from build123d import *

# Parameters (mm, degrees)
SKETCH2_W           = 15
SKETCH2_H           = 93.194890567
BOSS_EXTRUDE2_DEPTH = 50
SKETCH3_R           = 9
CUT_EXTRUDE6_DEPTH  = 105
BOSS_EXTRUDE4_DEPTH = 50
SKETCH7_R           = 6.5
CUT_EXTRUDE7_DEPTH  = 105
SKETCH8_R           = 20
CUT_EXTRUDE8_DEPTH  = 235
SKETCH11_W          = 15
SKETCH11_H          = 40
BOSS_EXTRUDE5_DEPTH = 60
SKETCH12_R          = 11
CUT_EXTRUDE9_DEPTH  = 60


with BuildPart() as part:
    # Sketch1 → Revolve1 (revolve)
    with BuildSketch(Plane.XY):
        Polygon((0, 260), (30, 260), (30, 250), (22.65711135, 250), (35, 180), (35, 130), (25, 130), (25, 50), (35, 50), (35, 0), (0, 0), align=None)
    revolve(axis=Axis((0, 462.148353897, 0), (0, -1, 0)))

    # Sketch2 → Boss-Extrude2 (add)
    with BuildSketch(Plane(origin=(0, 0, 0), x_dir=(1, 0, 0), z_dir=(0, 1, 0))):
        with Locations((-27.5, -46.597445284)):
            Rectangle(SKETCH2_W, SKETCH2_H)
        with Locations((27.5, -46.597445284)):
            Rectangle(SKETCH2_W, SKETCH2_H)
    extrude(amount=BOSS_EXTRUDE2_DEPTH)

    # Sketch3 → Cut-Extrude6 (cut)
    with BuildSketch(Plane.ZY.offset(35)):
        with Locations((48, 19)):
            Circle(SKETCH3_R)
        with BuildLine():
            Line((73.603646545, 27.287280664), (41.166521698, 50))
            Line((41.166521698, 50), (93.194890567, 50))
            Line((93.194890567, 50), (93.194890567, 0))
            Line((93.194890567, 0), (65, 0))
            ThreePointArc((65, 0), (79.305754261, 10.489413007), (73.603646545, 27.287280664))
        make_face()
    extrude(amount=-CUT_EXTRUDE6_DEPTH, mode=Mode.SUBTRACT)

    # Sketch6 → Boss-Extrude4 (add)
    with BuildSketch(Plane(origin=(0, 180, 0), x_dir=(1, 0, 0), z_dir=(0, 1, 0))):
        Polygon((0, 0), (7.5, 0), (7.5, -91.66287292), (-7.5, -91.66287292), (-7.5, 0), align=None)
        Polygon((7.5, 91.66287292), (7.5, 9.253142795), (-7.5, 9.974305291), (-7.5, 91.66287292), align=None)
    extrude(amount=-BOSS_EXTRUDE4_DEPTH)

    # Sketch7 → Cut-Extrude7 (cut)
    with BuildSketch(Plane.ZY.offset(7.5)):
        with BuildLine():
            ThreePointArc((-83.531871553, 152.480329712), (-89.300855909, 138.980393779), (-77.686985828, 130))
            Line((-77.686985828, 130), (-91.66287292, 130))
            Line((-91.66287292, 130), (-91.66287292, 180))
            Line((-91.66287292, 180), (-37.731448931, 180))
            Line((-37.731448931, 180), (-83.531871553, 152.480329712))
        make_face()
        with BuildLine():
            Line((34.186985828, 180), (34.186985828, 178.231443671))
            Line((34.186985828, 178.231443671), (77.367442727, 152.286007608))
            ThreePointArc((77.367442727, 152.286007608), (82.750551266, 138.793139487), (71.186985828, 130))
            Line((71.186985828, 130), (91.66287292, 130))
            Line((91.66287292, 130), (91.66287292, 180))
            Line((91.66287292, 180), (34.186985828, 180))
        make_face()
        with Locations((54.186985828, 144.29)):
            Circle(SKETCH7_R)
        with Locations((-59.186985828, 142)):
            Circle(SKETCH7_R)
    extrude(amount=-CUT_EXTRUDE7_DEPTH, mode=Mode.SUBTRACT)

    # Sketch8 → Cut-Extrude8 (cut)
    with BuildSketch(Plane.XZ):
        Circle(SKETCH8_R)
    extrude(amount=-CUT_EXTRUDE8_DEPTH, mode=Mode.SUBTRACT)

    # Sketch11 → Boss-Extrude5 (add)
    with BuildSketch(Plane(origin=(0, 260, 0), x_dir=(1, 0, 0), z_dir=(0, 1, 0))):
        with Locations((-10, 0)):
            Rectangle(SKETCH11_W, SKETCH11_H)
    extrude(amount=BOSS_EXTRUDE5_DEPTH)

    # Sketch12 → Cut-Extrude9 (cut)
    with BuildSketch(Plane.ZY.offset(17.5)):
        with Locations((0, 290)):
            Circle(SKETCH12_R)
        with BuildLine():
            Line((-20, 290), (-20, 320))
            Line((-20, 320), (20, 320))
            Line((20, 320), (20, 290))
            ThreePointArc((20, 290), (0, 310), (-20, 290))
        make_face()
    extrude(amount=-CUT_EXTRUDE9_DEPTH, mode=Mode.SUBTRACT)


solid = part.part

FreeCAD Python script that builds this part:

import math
import FreeCAD as App
import Part
import Sketcher
Q = App.Units.Quantity

doc = App.newDocument("Part")
params = doc.addObject("Spreadsheet::Sheet", "Params")
for row, (alias, value) in enumerate([
    ("sketch1_width", "30 mm"),
    ("sketch1_width2", "35 mm"),
    ("sketch1_width3", "10 mm"),
    ("sketch1_height", "260 mm"),
    ("sketch1_height2", "50 mm"),
    ("revolution_angle", "360 deg"),
    ("sketch2_width", "15 mm"),
    ("pad1_length", "50 mm"),
    ("sketch3_diameter", "18 mm"),
    ("sketch3_radius", "15 mm"),
    ("sketch3_width", "50 mm"),
    ("pocket1_length", "105 mm"),
    ("sketch4_width", "15 mm"),
    ("pad2_length", "50 mm"),
    ("sketch5_diameter", "13 mm"),
    ("sketch5_radius", "12 mm"),
    ("sketch5_width", "50 mm"),
    ("pocket2_length", "105 mm"),
    ("sketch6_diameter", "40 mm"),
    ("pocket3_length", "235 mm"),
    ("sketch7_width", "15 mm"),
    ("sketch7_height", "40 mm"),
    ("pad3_length", "60 mm"),
    ("sketch8_diameter", "22 mm"),
    ("sketch8_radius", "20 mm"),
    ("sketch8_width", "30 mm"),
    ("pocket4_length", "60 mm"),
], start=1):
    params.set(f"A{row}", alias)
    params.set(f"B{row}", "=" + value)
    params.setAlias(f"B{row}", alias)

body = doc.addObject("PartDesign::Body", "Body")

# Sketch on XY plane
sketch1 = doc.addObject("Sketcher::SketchObject", "Sketch")
body.addObject(sketch1)
sketch1.AttachmentSupport = (doc.XY_Plane, [""])
sketch1.MapMode = "FlatFace"
sketch1.addGeometry(Part.LineSegment(App.Vector(30, 260, 0), App.Vector(0, 260, 0)), False)
sketch1.addGeometry(Part.LineSegment(App.Vector(0, 260, 0), App.Vector(0, 0, 0)), False)
sketch1.addGeometry(Part.LineSegment(App.Vector(0, 0, 0), App.Vector(35, 0, 0)), False)
sketch1.addGeometry(Part.LineSegment(App.Vector(35, 0, 0), App.Vector(35, 50, 0)), False)
sketch1.addGeometry(Part.LineSegment(App.Vector(35, 50, 0), App.Vector(25, 50, 0)), False)
sketch1.addGeometry(Part.LineSegment(App.Vector(25, 50, 0), App.Vector(25, 130, 0)), False)
sketch1.addGeometry(Part.LineSegment(App.Vector(25, 130, 0), App.Vector(35, 130, 0)), False)
sketch1.addGeometry(Part.LineSegment(App.Vector(35, 130, 0), App.Vector(35, 180, 0)), False)
sketch1.addGeometry(Part.LineSegment(App.Vector(35, 180, 0), App.Vector(23, 250, 0)), False)
sketch1.addGeometry(Part.LineSegment(App.Vector(23, 250, 0), App.Vector(30, 250, 0)), False)
sketch1.addGeometry(Part.LineSegment(App.Vector(30, 250, 0), App.Vector(30, 260, 0)), False)
sketch1.addConstraint(Sketcher.Constraint("Coincident", 0, 2, 1, 1))
sketch1.addConstraint(Sketcher.Constraint("Coincident", 1, 2, 2, 1))
sketch1.addConstraint(Sketcher.Constraint("Coincident", 2, 2, 3, 1))
sketch1.addConstraint(Sketcher.Constraint("Coincident", 3, 2, 4, 1))
sketch1.addConstraint(Sketcher.Constraint("Coincident", 4, 2, 5, 1))
sketch1.addConstraint(Sketcher.Constraint("Coincident", 5, 2, 6, 1))
sketch1.addConstraint(Sketcher.Constraint("Coincident", 6, 2, 7, 1))
sketch1.addConstraint(Sketcher.Constraint("Coincident", 7, 2, 8, 1))
sketch1.addConstraint(Sketcher.Constraint("Coincident", 8, 2, 9, 1))
sketch1.addConstraint(Sketcher.Constraint("Coincident", 9, 2, 10, 1))
sketch1.addConstraint(Sketcher.Constraint("Coincident", 10, 2, 0, 1))
sketch1.addConstraint(Sketcher.Constraint("Horizontal", 0))
sketch1.addConstraint(Sketcher.Constraint("Vertical", 1))
sketch1.addConstraint(Sketcher.Constraint("Horizontal", 2))
sketch1.addConstraint(Sketcher.Constraint("Vertical", 3))
sketch1.addConstraint(Sketcher.Constraint("Horizontal", 4))
sketch1.addConstraint(Sketcher.Constraint("Vertical", 5))
sketch1.addConstraint(Sketcher.Constraint("Horizontal", 6))
sketch1.addConstraint(Sketcher.Constraint("Vertical", 7))
sketch1.addConstraint(Sketcher.Constraint("Horizontal", 9))
sketch1.addConstraint(Sketcher.Constraint("Vertical", 10))
sketch1.addConstraint(Sketcher.Constraint("Coincident", 1, 2, -1, 1))
sketch1.addConstraint(Sketcher.Constraint("Vertical", 3, 2, 6, 2))
sketch1.addConstraint(Sketcher.Constraint("Equal", 3, 7))
sketch1.addConstraint(Sketcher.Constraint("Equal", 6, 10))
sketch1.addConstraint(Sketcher.Constraint("DistanceX", 0, 2, 0, 1, 30.0))
sketch1.addConstraint(Sketcher.Constraint("DistanceX", 2, 1, 2, 2, 35.0))
sketch1.addConstraint(Sketcher.Constraint("DistanceX", 4, 2, 4, 1, 10.0))
sketch1.addConstraint(Sketcher.Constraint("DistanceY", 1, 2, 1, 1, 260.0))
sketch1.addConstraint(Sketcher.Constraint("DistanceY", 3, 1, 3, 2, 50.0))
sketch1.addConstraint(Sketcher.Constraint("DistanceY", 5, 1, 5, 2, 80.0))
sketch1.addConstraint(Sketcher.Constraint("Angle", 8, Q("100 deg")))
sketch1.setExpression("Constraints[25]", "Params.sketch1_width")
sketch1.setExpression("Constraints[26]", "Params.sketch1_width2")
sketch1.setExpression("Constraints[27]", "Params.sketch1_width3")
sketch1.setExpression("Constraints[28]", "Params.sketch1_height")
sketch1.setExpression("Constraints[29]", "Params.sketch1_height2")
revolution = doc.addObject("PartDesign::Revolution", "Revolution")
body.addObject(revolution)
revolution.Profile = sketch1
revolution.ReferenceAxis = (sketch1, ["V_Axis"])
revolution.setExpression("Angle", "Params.revolution_angle")

# Sketch on XZ plane
sketch2 = doc.addObject("Sketcher::SketchObject", "Sketch001")
body.addObject(sketch2)
sketch2.AttachmentSupport = (doc.XZ_Plane, [""])
sketch2.MapMode = "FlatFace"
sketch2.addGeometry(Part.LineSegment(App.Vector(-35, 0, 0), App.Vector(-35, 93, 0)), False)
sketch2.addGeometry(Part.LineSegment(App.Vector(-35, 93, 0), App.Vector(-20, 93, 0)), False)
sketch2.addGeometry(Part.LineSegment(App.Vector(-20, 93, 0), App.Vector(-20, 0, 0)), False)
sketch2.addGeometry(Part.LineSegment(App.Vector(-20, 0, 0), App.Vector(-35, 0, 0)), False)
sketch2.addGeometry(Part.LineSegment(App.Vector(20, 0, 0), App.Vector(20, 93, 0)), False)
sketch2.addGeometry(Part.LineSegment(App.Vector(20, 93, 0), App.Vector(35, 93, 0)), False)
sketch2.addGeometry(Part.LineSegment(App.Vector(35, 93, 0), App.Vector(35, 0, 0)), False)
sketch2.addGeometry(Part.LineSegment(App.Vector(35, 0, 0), App.Vector(20, 0, 0)), False)
sketch2.addConstraint(Sketcher.Constraint("Coincident", 0, 2, 1, 1))
sketch2.addConstraint(Sketcher.Constraint("Coincident", 1, 2, 2, 1))
sketch2.addConstraint(Sketcher.Constraint("Coincident", 2, 2, 3, 1))
sketch2.addConstraint(Sketcher.Constraint("Coincident", 3, 2, 0, 1))
sketch2.addConstraint(Sketcher.Constraint("Coincident", 4, 2, 5, 1))
sketch2.addConstraint(Sketcher.Constraint("Coincident", 5, 2, 6, 1))
sketch2.addConstraint(Sketcher.Constraint("Coincident", 6, 2, 7, 1))
sketch2.addConstraint(Sketcher.Constraint("Coincident", 7, 2, 4, 1))
sketch2.addConstraint(Sketcher.Constraint("Vertical", 0))
sketch2.addConstraint(Sketcher.Constraint("Horizontal", 1))
sketch2.addConstraint(Sketcher.Constraint("Vertical", 2))
sketch2.addConstraint(Sketcher.Constraint("Horizontal", 3))
sketch2.addConstraint(Sketcher.Constraint("Vertical", 4))
sketch2.addConstraint(Sketcher.Constraint("Horizontal", 5))
sketch2.addConstraint(Sketcher.Constraint("Vertical", 6))
sketch2.addConstraint(Sketcher.Constraint("Horizontal", 7))
sketch2.addConstraint(Sketcher.Constraint("Symmetric", 3, 2, 6, 2, -1, 1))
sketch2.addConstraint(Sketcher.Constraint("Symmetric", 1, 2, 4, 2, -2))
sketch2.addConstraint(Sketcher.Constraint("PointOnObject", 2, 2, -1))
sketch2.addConstraint(Sketcher.Constraint("DistanceX", 1, 1, 1, 2, 15.0))
sketch2.addConstraint(Sketcher.Constraint("DistanceX", 0, 2, -1, 1, 35.0))
sketch2.addConstraint(Sketcher.Constraint("DistanceY", 0, 1, 0, 2, 93.194891))
sketch2.setExpression("Constraints[19]", "Params.sketch2_width")
pad1 = doc.addObject("PartDesign::Pad", "Pad")
body.addObject(pad1)
pad1.Profile = sketch2
pad1.setExpression("Length", "Params.pad1_length")
pad1.Reversed = True

# Sketch on YZ plane
sketch3 = doc.addObject("Sketcher::SketchObject", "Sketch002")
body.addObject(sketch3)
sketch3.AttachmentSupport = (doc.YZ_Plane, [""])
sketch3.MapMode = "FlatFace"
sketch3.AttachmentOffset = App.Placement(App.Vector(0, 0, -35), App.Rotation())
sketch3.addGeometry(Part.Circle(App.Vector(19, 48, 0), App.Vector(0, 0, 1), 9), False)
sketch3.addGeometry(Part.LineSegment(App.Vector(50, 41, 0), App.Vector(27, 74, 0)), False)
sketch3.addGeometry(Part.ArcOfCircle(Part.Circle(App.Vector(15, 65, 0), App.Vector(0, 0, 1), 15), math.radians(35), math.radians(180)), False)
sketch3.addGeometry(Part.LineSegment(App.Vector(0, 65, 0), App.Vector(0, 93, 0)), False)
sketch3.addGeometry(Part.LineSegment(App.Vector(0, 93, 0), App.Vector(50, 93, 0)), False)
sketch3.addGeometry(Part.LineSegment(App.Vector(50, 93, 0), App.Vector(50, 41, 0)), False)
sketch3.addConstraint(Sketcher.Constraint("Tangent", 1, 2, 2, 1))
sketch3.addConstraint(Sketcher.Constraint("Tangent", 2, 2, 3, 1))
sketch3.addConstraint(Sketcher.Constraint("Coincident", 3, 2, 4, 1))
sketch3.addConstraint(Sketcher.Constraint("Coincident", 4, 2, 5, 1))
sketch3.addConstraint(Sketcher.Constraint("Coincident", 5, 2, 1, 1))
sketch3.addConstraint(Sketcher.Constraint("Vertical", 3))
sketch3.addConstraint(Sketcher.Constraint("Horizontal", 4))
sketch3.addConstraint(Sketcher.Constraint("Vertical", 5))
sketch3.addConstraint(Sketcher.Constraint("PointOnObject", 2, 2, -2))
sketch3.addConstraint(Sketcher.Constraint("Diameter", 0, 18.0))
sketch3.addConstraint(Sketcher.Constraint("Radius", 2, 15.0))
sketch3.addConstraint(Sketcher.Constraint("DistanceX", 4, 1, 4, 2, 50.0))
sketch3.addConstraint(Sketcher.Constraint("Angle", 1, Q("125 deg")))
sketch3.addConstraint(Sketcher.Constraint("DistanceX", -1, 1, 0, 3, 19.0))
sketch3.addConstraint(Sketcher.Constraint("DistanceY", -1, 1, 0, 3, 48.0))
sketch3.addConstraint(Sketcher.Constraint("DistanceY", -1, 1, 2, 3, 65.0))
sketch3.addConstraint(Sketcher.Constraint("DistanceY", 3, 1, 3, 2, 28.194891))
sketch3.setExpression("Constraints[9]", "Params.sketch3_diameter")
sketch3.setExpression("Constraints[10]", "Params.sketch3_radius")
sketch3.setExpression("Constraints[11]", "Params.sketch3_width")
pocket1 = doc.addObject("PartDesign::Pocket", "Pocket")
body.addObject(pocket1)
pocket1.Profile = sketch3
pocket1.setExpression("Length", "Params.pocket1_length")
pocket1.Reversed = True

# Sketch on XZ plane
sketch4 = doc.addObject("Sketcher::SketchObject", "Sketch003")
body.addObject(sketch4)
sketch4.AttachmentSupport = (doc.XZ_Plane, [""])
sketch4.MapMode = "FlatFace"
sketch4.AttachmentOffset = App.Placement(App.Vector(0, 0, -180), App.Rotation())
sketch4.addGeometry(Part.LineSegment(App.Vector(8, 0, 0), App.Vector(-8, 0, 0)), False)
sketch4.addGeometry(Part.LineSegment(App.Vector(-8, 0, 0), App.Vector(-8, 92, 0)), False)
sketch4.addGeometry(Part.LineSegment(App.Vector(-8, 92, 0), App.Vector(8, 92, 0)), False)
sketch4.addGeometry(Part.LineSegment(App.Vector(8, 92, 0), App.Vector(8, 0, 0)), False)
sketch4.addGeometry(Part.LineSegment(App.Vector(8, -9, 0), App.Vector(8, -92, 0)), False)
sketch4.addGeometry(Part.LineSegment(App.Vector(8, -92, 0), App.Vector(-8, -92, 0)), False)
sketch4.addGeometry(Part.LineSegment(App.Vector(-8, -92, 0), App.Vector(-8, -10, 0)), False)
sketch4.addGeometry(Part.LineSegment(App.Vector(-8, -10, 0), App.Vector(8, -9, 0)), False)
sketch4.addConstraint(Sketcher.Constraint("Coincident", 0, 2, 1, 1))
sketch4.addConstraint(Sketcher.Constraint("Coincident", 1, 2, 2, 1))
sketch4.addConstraint(Sketcher.Constraint("Coincident", 2, 2, 3, 1))
sketch4.addConstraint(Sketcher.Constraint("Coincident", 3, 2, 0, 1))
sketch4.addConstraint(Sketcher.Constraint("Coincident", 4, 2, 5, 1))
sketch4.addConstraint(Sketcher.Constraint("Coincident", 5, 2, 6, 1))
sketch4.addConstraint(Sketcher.Constraint("Coincident", 6, 2, 7, 1))
sketch4.addConstraint(Sketcher.Constraint("Coincident", 7, 2, 4, 1))
sketch4.addConstraint(Sketcher.Constraint("Horizontal", 0))
sketch4.addConstraint(Sketcher.Constraint("Vertical", 1))
sketch4.addConstraint(Sketcher.Constraint("Horizontal", 2))
sketch4.addConstraint(Sketcher.Constraint("Vertical", 3))
sketch4.addConstraint(Sketcher.Constraint("Vertical", 4))
sketch4.addConstraint(Sketcher.Constraint("Horizontal", 5))
sketch4.addConstraint(Sketcher.Constraint("Vertical", 6))
sketch4.addConstraint(Sketcher.Constraint("Symmetric", 0, 2, 3, 2, -1, 1))
sketch4.addConstraint(Sketcher.Constraint("Symmetric", 1, 2, 4, 2, -1, 1))
sketch4.addConstraint(Sketcher.Constraint("Vertical", 1, 2, 5, 2))
sketch4.addConstraint(Sketcher.Constraint("DistanceX", 0, 2, 0, 1, 15.0))
sketch4.addConstraint(Sketcher.Constraint("DistanceY", 4, 2, 4, 1, 82.40973))
sketch4.addConstraint(Sketcher.Constraint("DistanceY", 1, 1, 1, 2, 91.662873))
sketch4.addConstraint(Sketcher.Constraint("DistanceY", 6, 1, 6, 2, 81.688568))
sketch4.setExpression("Constraints[18]", "Params.sketch4_width")
pad2 = doc.addObject("PartDesign::Pad", "Pad001")
body.addObject(pad2)
pad2.Profile = sketch4
pad2.setExpression("Length", "Params.pad2_length")

# Sketch on YZ plane
sketch5 = doc.addObject("Sketcher::SketchObject", "Sketch004")
body.addObject(sketch5)
sketch5.AttachmentSupport = (doc.YZ_Plane, [""])
sketch5.MapMode = "FlatFace"
sketch5.AttachmentOffset = App.Placement(App.Vector(0, 0, -7.5), App.Rotation())
sketch5.addGeometry(Part.ArcOfCircle(Part.Circle(App.Vector(142, -77.7, 0), App.Vector(0, 0, 1), 12), math.radians(-180), math.radians(-29)), False)
sketch5.addGeometry(Part.LineSegment(App.Vector(152.5, -83.5, 0), App.Vector(180, -37.7, 0)), False)
sketch5.addGeometry(Part.LineSegment(App.Vector(180, -37.7, 0), App.Vector(180, -91.7, 0)), False)
sketch5.addGeometry(Part.LineSegment(App.Vector(180, -91.7, 0), App.Vector(130, -91.7, 0)), False)
sketch5.addGeometry(Part.LineSegment(App.Vector(130, -91.7, 0), App.Vector(130, -77.7, 0)), False)
sketch5.addGeometry(Part.LineSegment(App.Vector(180, 34.2, 0), App.Vector(178.2, 34.2, 0)), False)
sketch5.addGeometry(Part.LineSegment(App.Vector(178.2, 34.2, 0), App.Vector(152.3, 77.4, 0)), False)
sketch5.addGeometry(Part.ArcOfCircle(Part.Circle(App.Vector(142, 71.2, 0), App.Vector(0, 0, 1), 12), math.radians(31), math.radians(180)), False)
sketch5.addGeometry(Part.LineSegment(App.Vector(130, 71.2, 0), App.Vector(130, 91.7, 0)), False)
sketch5.addGeometry(Part.LineSegment(App.Vector(130, 91.7, 0), App.Vector(180, 91.7, 0)), False)
sketch5.addGeometry(Part.LineSegment(App.Vector(180, 91.7, 0), App.Vector(180, 34.2, 0)), False)
sketch5.addGeometry(Part.Circle(App.Vector(144.3, 54.2, 0), App.Vector(0, 0, 1), 6.5), False)
sketch5.addGeometry(Part.Circle(App.Vector(142, -59.2, 0), App.Vector(0, 0, 1), 6.5), False)
sketch5.addConstraint(Sketcher.Constraint("Coincident", 0, 2, 1, 1))
sketch5.addConstraint(Sketcher.Constraint("Coincident", 1, 2, 2, 1))
sketch5.addConstraint(Sketcher.Constraint("Coincident", 2, 2, 3, 1))
sketch5.addConstraint(Sketcher.Constraint("Coincident", 3, 2, 4, 1))
sketch5.addConstraint(Sketcher.Constraint("Tangent", 4, 2, 0, 1))
sketch5.addConstraint(Sketcher.Constraint("Coincident", 5, 2, 6, 1))
sketch5.addConstraint(Sketcher.Constraint("Tangent", 6, 2, 7, 1))
sketch5.addConstraint(Sketcher.Constraint("Tangent", 7, 2, 8, 1))
sketch5.addConstraint(Sketcher.Constraint("Coincident", 8, 2, 9, 1))
sketch5.addConstraint(Sketcher.Constraint("Coincident", 9, 2, 10, 1))
sketch5.addConstraint(Sketcher.Constraint("Coincident", 10, 2, 5, 1))
sketch5.addConstraint(Sketcher.Constraint("Vertical", 2))
sketch5.addConstraint(Sketcher.Constraint("Horizontal", 3))
sketch5.addConstraint(Sketcher.Constraint("Vertical", 4))
sketch5.addConstraint(Sketcher.Constraint("Horizontal", 5))
sketch5.addConstraint(Sketcher.Constraint("Vertical", 8))
sketch5.addConstraint(Sketcher.Constraint("Horizontal", 9))
sketch5.addConstraint(Sketcher.Constraint("Vertical", 10))
sketch5.addConstraint(Sketcher.Constraint("Equal", 0, 7))
sketch5.addConstraint(Sketcher.Constraint("Equal", 11, 12))
sketch5.addConstraint(Sketcher.Constraint("Symmetric", 3, 2, 8, 2, -1))
sketch5.addConstraint(Sketcher.Constraint("Vertical", 7, 3, 12, 3))
sketch5.addConstraint(Sketcher.Constraint("Vertical", 2, 2, 9, 2))
sketch5.addConstraint(Sketcher.Constraint("Diameter", 11, 13.0))
sketch5.addConstraint(Sketcher.Constraint("Radius", 0, 12.0))
sketch5.addConstraint(Sketcher.Constraint("DistanceX", 3, 2, 3, 1, 50.0))
sketch5.addConstraint(Sketcher.Constraint("Angle", 1, Q("59 deg")))
sketch5.addConstraint(Sketcher.Constraint("Angle", 6, Q("121 deg")))
sketch5.addConstraint(Sketcher.Constraint("DistanceX", -1, 1, 0, 3, 142.0))
sketch5.addConstraint(Sketcher.Constraint("DistanceY", 11, 3, 7, 3, 17.0))
sketch5.addConstraint(Sketcher.Constraint("DistanceY", 5, 2, 11, 3, 20.0))
sketch5.addConstraint(Sketcher.Constraint("DistanceY", 0, 3, 12, 3, 18.5))
sketch5.addConstraint(Sketcher.Constraint("DistanceX", -1, 1, 11, 3, 144.29))
sketch5.addConstraint(Sketcher.Constraint("DistanceY", 2, 2, 0, 2, 8.131001))
sketch5.addConstraint(Sketcher.Constraint("DistanceY", 2, 2, 2, 1, 53.931424))
sketch5.addConstraint(Sketcher.Constraint("DistanceY", 8, 1, 8, 2, 20.475887))
sketch5.addConstraint(Sketcher.Constraint("DistanceY", 0, 2, -1, 1, 83.531872))
sketch5.setExpression("Constraints[23]", "Params.sketch5_diameter")
sketch5.setExpression("Constraints[24]", "Params.sketch5_radius")
sketch5.setExpression("Constraints[25]", "Params.sketch5_width")
pocket2 = doc.addObject("PartDesign::Pocket", "Pocket001")
body.addObject(pocket2)
pocket2.Profile = sketch5
pocket2.setExpression("Length", "Params.pocket2_length")
pocket2.Reversed = True

# Sketch on XZ plane
sketch6 = doc.addObject("Sketcher::SketchObject", "Sketch005")
body.addObject(sketch6)
sketch6.AttachmentSupport = (doc.XZ_Plane, [""])
sketch6.MapMode = "FlatFace"
sketch6.addGeometry(Part.Circle(App.Vector(0, 0, 0), App.Vector(0, 0, 1), 20), False)
sketch6.addConstraint(Sketcher.Constraint("Coincident", 0, 3, -1, 1))
sketch6.addConstraint(Sketcher.Constraint("Diameter", 0, 40.0))
sketch6.setExpression("Constraints[1]", "Params.sketch6_diameter")
pocket3 = doc.addObject("PartDesign::Pocket", "Pocket002")
body.addObject(pocket3)
pocket3.Profile = sketch6
pocket3.setExpression("Length", "Params.pocket3_length")

# Sketch on XZ plane
sketch7 = doc.addObject("Sketcher::SketchObject", "Sketch006")
body.addObject(sketch7)
sketch7.AttachmentSupport = (doc.XZ_Plane, [""])
sketch7.MapMode = "FlatFace"
sketch7.AttachmentOffset = App.Placement(App.Vector(0, 0, -260), App.Rotation())
sketch7.addGeometry(Part.LineSegment(App.Vector(-18, -20, 0), App.Vector(-18, 20, 0)), False)
sketch7.addGeometry(Part.LineSegment(App.Vector(-18, 20, 0), App.Vector(-2, 20, 0)), False)
sketch7.addGeometry(Part.LineSegment(App.Vector(-2, 20, 0), App.Vector(-2, -20, 0)), False)
sketch7.addGeometry(Part.LineSegment(App.Vector(-2, -20, 0), App.Vector(-18, -20, 0)), False)
sketch7.addConstraint(Sketcher.Constraint("Coincident", 0, 2, 1, 1))
sketch7.addConstraint(Sketcher.Constraint("Coincident", 1, 2, 2, 1))
sketch7.addConstraint(Sketcher.Constraint("Coincident", 2, 2, 3, 1))
sketch7.addConstraint(Sketcher.Constraint("Coincident", 3, 2, 0, 1))
sketch7.addConstraint(Sketcher.Constraint("Vertical", 0))
sketch7.addConstraint(Sketcher.Constraint("Horizontal", 1))
sketch7.addConstraint(Sketcher.Constraint("Vertical", 2))
sketch7.addConstraint(Sketcher.Constraint("Horizontal", 3))
sketch7.addConstraint(Sketcher.Constraint("DistanceX", 1, 1, 1, 2, 15.0))
sketch7.addConstraint(Sketcher.Constraint("DistanceY", 0, 1, 0, 2, 40.0))
sketch7.addConstraint(Sketcher.Constraint("DistanceY", -1, 1, 0, 2, 20.0))
sketch7.addConstraint(Sketcher.Constraint("DistanceX", 0, 2, -1, 1, 17.5))
sketch7.setExpression("Constraints[8]", "Params.sketch7_width")
sketch7.setExpression("Constraints[9]", "Params.sketch7_height")
pad3 = doc.addObject("PartDesign::Pad", "Pad002")
body.addObject(pad3)
pad3.Profile = sketch7
pad3.setExpression("Length", "Params.pad3_length")
pad3.Reversed = True

# Sketch on YZ plane
sketch8 = doc.addObject("Sketcher::SketchObject", "Sketch007")
body.addObject(sketch8)
sketch8.AttachmentSupport = (doc.YZ_Plane, [""])
sketch8.MapMode = "FlatFace"
sketch8.AttachmentOffset = App.Placement(App.Vector(0, 0, -17.5), App.Rotation())
sketch8.addGeometry(Part.Circle(App.Vector(290, 0, 0), App.Vector(0, 0, 1), 11), False)
sketch8.addGeometry(Part.LineSegment(App.Vector(320, -20, 0), App.Vector(290, -20, 0)), False)
sketch8.addGeometry(Part.ArcOfCircle(Part.Circle(App.Vector(290, 0, 0), App.Vector(0, 0, 1), 20), math.radians(-90), math.radians(90)), False)
sketch8.addGeometry(Part.LineSegment(App.Vector(290, 20, 0), App.Vector(320, 20, 0)), False)
sketch8.addGeometry(Part.LineSegment(App.Vector(320, 20, 0), App.Vector(320, -20, 0)), False)
sketch8.addConstraint(Sketcher.Constraint("Tangent", 1, 2, 2, 1))
sketch8.addConstraint(Sketcher.Constraint("Tangent", 2, 2, 3, 1))
sketch8.addConstraint(Sketcher.Constraint("Coincident", 3, 2, 4, 1))
sketch8.addConstraint(Sketcher.Constraint("Coincident", 4, 2, 1, 1))
sketch8.addConstraint(Sketcher.Constraint("Horizontal", 1))
sketch8.addConstraint(Sketcher.Constraint("Horizontal", 3))
sketch8.addConstraint(Sketcher.Constraint("Vertical", 4))
sketch8.addConstraint(Sketcher.Constraint("Coincident", 2, 3, 0, 3))
sketch8.addConstraint(Sketcher.Constraint("PointOnObject", 0, 3, -1))
sketch8.addConstraint(Sketcher.Constraint("Diameter", 0, 22.0))
sketch8.addConstraint(Sketcher.Constraint("Radius", 2, 20.0))
sketch8.addConstraint(Sketcher.Constraint("DistanceX", 1, 2, 1, 1, 30.0))
sketch8.addConstraint(Sketcher.Constraint("DistanceX", -1, 1, 0, 3, 290.0))
sketch8.setExpression("Constraints[9]", "Params.sketch8_diameter")
sketch8.setExpression("Constraints[10]", "Params.sketch8_radius")
sketch8.setExpression("Constraints[11]", "Params.sketch8_width")
pocket4 = doc.addObject("PartDesign::Pocket", "Pocket003")
body.addObject(pocket4)
pocket4.Profile = sketch8
pocket4.setExpression("Length", "Params.pocket4_length")
pocket4.Reversed = True

doc.recompute()
